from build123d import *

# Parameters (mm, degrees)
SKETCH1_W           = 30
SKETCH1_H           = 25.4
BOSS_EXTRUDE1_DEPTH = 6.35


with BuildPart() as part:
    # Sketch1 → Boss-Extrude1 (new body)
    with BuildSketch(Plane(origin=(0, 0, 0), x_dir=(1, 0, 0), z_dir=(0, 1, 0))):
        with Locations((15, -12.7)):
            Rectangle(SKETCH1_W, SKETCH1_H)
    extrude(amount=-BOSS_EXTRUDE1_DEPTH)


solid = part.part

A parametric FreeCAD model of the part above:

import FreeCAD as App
import Part
import Sketcher

V = App.Vector
Q = App.Units.Quantity

doc = App.newDocument("Part")
body = doc.addObject("PartDesign::Body", "Body")

# Sketch on XZ plane
sketch1 = body.newObject("Sketcher::SketchObject", "Sketch")
sketch1.AttachmentSupport = (doc.getObject("XZ_Plane"), [""])
sketch1.MapMode = "FlatFace"
sketch1.addGeometry(Part.LineSegment(V(0, 0, 0), V(0, 25, 0)), False)
sketch1.addGeometry(Part.LineSegment(V(0, 25, 0), V(30, 25, 0)), False)
sketch1.addGeometry(Part.LineSegment(V(30, 25, 0), V(30, 0, 0)), False)
sketch1.addGeometry(Part.LineSegment(V(30, 0, 0), V(0, 0, 0)), False)
sketch1.addConstraint(Sketcher.Constraint("Coincident", 0, 2, 1, 1))
sketch1.addConstraint(Sketcher.Constraint("Coincident", 1, 2, 2, 1))
sketch1.addConstraint(Sketcher.Constraint("Coincident", 2, 2, 3, 1))
sketch1.addConstraint(Sketcher.Constraint("Coincident", 3, 2, 0, 1))
sketch1.addConstraint(Sketcher.Constraint("Vertical", 0))
sketch1.addConstraint(Sketcher.Constraint("Horizontal", 1))
sketch1.addConstraint(Sketcher.Constraint("Vertical", 2))
sketch1.addConstraint(Sketcher.Constraint("Horizontal", 3))
sketch1.addConstraint(Sketcher.Constraint("Coincident", 3, 2, -1, 1))
sketch1.addConstraint(Sketcher.Constraint("DistanceY", 0, 1, 0, 2, Q("1 in")))
sketch1.addConstraint(Sketcher.Constraint("DistanceX", 1, 1, 1, 2, Q("30 mm")))
pad1 = body.newObject("PartDesign::Pad", "Pad")
pad1.Profile = sketch1
pad1.Length = Q("0.25 in")

doc.recompute()
